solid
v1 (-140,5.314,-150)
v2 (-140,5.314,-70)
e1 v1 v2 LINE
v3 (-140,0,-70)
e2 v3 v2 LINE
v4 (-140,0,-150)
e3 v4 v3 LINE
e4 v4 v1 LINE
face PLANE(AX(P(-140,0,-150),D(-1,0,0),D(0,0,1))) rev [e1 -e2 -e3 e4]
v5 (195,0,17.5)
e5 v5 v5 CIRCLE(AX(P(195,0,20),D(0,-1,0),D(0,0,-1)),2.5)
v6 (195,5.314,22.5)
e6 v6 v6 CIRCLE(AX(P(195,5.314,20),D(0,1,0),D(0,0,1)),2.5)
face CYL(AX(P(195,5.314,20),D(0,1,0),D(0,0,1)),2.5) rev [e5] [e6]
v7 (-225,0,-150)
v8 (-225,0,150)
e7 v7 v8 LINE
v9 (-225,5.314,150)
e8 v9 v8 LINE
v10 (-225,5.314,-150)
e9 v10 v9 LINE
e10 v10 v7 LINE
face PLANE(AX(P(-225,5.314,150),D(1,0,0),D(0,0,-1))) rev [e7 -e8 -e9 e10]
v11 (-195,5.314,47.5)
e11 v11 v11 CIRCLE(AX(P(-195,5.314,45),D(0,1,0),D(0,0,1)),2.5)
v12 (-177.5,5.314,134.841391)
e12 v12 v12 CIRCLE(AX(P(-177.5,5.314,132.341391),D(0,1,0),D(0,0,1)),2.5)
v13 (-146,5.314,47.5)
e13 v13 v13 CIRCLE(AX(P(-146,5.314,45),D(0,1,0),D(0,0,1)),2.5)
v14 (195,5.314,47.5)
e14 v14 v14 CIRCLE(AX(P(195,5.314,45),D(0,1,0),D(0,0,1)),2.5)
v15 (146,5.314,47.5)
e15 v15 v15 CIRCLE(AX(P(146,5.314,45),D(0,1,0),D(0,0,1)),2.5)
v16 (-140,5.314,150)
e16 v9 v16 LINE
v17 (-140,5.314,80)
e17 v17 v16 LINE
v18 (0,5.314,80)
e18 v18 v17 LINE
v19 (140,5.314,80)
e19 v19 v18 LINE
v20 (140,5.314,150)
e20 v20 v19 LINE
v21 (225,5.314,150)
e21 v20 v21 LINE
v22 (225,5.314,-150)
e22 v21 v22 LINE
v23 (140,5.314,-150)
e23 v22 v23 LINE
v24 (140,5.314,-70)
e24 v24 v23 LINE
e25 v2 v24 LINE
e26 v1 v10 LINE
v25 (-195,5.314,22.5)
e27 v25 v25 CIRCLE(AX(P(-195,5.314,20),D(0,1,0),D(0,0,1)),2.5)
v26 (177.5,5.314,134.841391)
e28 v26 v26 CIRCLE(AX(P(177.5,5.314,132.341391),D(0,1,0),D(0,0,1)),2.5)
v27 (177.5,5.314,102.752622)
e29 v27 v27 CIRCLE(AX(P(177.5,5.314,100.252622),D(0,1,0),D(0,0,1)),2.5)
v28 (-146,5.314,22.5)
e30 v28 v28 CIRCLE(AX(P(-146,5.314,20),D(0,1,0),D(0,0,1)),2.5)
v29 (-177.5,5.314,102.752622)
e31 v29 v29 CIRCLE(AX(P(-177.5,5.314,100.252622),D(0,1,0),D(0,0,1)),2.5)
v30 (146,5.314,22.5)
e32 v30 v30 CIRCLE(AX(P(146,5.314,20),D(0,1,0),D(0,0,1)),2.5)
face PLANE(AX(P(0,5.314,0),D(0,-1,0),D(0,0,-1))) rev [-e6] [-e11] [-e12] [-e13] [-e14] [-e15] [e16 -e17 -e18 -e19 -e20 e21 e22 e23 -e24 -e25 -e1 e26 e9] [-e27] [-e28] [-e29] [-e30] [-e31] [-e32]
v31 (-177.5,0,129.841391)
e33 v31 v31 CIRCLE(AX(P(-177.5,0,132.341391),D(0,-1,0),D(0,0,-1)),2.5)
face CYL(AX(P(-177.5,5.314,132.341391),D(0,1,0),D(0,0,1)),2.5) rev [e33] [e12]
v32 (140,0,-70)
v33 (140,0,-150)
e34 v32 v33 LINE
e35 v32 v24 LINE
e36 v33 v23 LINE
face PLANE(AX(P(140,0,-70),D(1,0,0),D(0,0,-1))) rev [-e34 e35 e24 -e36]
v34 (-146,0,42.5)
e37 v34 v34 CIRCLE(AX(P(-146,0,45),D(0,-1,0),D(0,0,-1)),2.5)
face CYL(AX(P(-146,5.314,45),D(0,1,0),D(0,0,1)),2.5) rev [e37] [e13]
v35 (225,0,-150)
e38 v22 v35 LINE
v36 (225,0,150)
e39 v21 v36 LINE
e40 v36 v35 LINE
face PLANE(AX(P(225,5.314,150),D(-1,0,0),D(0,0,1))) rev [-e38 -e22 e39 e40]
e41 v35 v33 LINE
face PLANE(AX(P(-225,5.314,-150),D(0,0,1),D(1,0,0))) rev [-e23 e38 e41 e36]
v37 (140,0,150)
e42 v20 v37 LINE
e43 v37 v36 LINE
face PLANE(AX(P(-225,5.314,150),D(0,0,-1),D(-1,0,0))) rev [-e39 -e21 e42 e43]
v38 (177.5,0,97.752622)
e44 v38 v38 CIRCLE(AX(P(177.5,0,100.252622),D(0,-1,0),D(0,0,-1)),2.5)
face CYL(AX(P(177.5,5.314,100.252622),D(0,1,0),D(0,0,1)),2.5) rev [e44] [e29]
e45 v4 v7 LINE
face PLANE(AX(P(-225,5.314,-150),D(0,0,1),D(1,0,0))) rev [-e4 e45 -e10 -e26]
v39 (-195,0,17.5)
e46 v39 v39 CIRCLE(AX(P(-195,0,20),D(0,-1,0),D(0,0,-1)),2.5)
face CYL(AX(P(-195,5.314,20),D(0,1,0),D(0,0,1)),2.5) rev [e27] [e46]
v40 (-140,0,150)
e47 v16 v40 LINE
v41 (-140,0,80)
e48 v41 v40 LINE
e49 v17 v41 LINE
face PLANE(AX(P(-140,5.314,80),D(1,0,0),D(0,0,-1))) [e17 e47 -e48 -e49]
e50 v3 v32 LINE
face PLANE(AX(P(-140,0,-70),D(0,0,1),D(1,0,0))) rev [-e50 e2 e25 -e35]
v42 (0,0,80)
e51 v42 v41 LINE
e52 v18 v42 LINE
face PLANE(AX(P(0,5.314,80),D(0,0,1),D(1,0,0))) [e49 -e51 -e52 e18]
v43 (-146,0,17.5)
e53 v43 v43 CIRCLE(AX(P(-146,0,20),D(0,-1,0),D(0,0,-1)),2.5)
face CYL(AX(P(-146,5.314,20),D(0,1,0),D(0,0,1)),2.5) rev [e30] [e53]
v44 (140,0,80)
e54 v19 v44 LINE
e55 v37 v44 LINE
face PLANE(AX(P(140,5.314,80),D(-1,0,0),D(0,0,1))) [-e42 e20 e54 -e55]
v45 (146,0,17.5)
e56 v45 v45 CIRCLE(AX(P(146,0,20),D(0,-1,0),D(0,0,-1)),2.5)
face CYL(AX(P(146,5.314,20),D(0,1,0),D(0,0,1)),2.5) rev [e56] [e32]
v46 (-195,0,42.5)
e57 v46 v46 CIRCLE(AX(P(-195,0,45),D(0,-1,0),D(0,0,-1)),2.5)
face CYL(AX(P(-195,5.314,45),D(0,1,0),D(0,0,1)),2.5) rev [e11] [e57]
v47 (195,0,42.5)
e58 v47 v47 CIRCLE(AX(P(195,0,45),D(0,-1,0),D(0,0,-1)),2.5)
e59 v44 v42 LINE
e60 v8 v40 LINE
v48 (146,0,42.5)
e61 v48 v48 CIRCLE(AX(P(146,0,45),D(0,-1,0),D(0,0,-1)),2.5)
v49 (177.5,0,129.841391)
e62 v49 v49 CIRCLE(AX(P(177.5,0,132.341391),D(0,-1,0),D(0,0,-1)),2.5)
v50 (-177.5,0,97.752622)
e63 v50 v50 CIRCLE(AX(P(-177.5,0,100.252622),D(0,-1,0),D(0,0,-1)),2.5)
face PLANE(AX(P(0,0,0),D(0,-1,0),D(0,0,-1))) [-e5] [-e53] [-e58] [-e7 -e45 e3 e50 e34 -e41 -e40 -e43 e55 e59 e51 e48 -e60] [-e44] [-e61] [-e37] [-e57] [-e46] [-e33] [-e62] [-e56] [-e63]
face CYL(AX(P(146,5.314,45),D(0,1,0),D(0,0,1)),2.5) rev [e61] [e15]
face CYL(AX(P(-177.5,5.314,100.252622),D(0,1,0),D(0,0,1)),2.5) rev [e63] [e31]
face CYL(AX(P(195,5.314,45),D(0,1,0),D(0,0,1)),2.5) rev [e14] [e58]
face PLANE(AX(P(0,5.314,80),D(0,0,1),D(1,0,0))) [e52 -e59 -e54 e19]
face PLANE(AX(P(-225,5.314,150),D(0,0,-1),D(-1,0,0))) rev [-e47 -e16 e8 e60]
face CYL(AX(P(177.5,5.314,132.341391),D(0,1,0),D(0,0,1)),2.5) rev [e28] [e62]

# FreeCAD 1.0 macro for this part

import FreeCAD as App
import Part
import Sketcher

V = App.Vector
Q = App.Units.Quantity

doc = App.newDocument("Part")
body = doc.addObject("PartDesign::Body", "Body")

sketch1 = body.newObject("Sketcher::SketchObject", "Sketch")
sketch1.AttachmentSupport = (doc.getObject("XZ_Plane"), [""])
sketch1.MapMode = "FlatFace"
sketch1.addGeometry(Part.LineSegment(V(-225, -150, 0), V(-225, 150, 0)), False)
sketch1.addGeometry(Part.LineSegment(V(-225, 150, 0), V(225, 150, 0)), False)
sketch1.addGeometry(Part.LineSegment(V(225, 150, 0), V(225, -150, 0)), False)
sketch1.addGeometry(Part.LineSegment(V(225, -150, 0), V(-225, -150, 0)), False)
sketch1.addConstraint(Sketcher.Constraint("Coincident", 0, 2, 1, 1))
sketch1.addConstraint(Sketcher.Constraint("Coincident", 1, 2, 2, 1))
sketch1.addConstraint(Sketcher.Constraint("Coincident", 2, 2, 3, 1))
sketch1.addConstraint(Sketcher.Constraint("Coincident", 3, 2, 0, 1))
sketch1.addConstraint(Sketcher.Constraint("Vertical", 0))
sketch1.addConstraint(Sketcher.Constraint("Horizontal", 1))
sketch1.addConstraint(Sketcher.Constraint("Vertical", 2))
sketch1.addConstraint(Sketcher.Constraint("Horizontal", 3))
sketch1.addConstraint(Sketcher.Constraint("Symmetric", 0, 2, 2, 2, -1, 1))
sketch1.addConstraint(Sketcher.Constraint("DistanceX", 1, 1, 1, 2, Q("450 mm")))
sketch1.addConstraint(Sketcher.Constraint("DistanceY", 0, 1, 0, 2, Q("300 mm")))
pad1 = body.newObject("PartDesign::Pad", "Pad")
pad1.Profile = sketch1
pad1.Length = 5.314
pad1.Reversed = True

sketch2 = body.newObject("Sketcher::SketchObject", "Sketch001")
sketch2.AttachmentSupport = (doc.getObject("XZ_Plane"), [""])
sketch2.MapMode = "FlatFace"
sketch2.AttachmentOffset = App.Placement(V(0, 0, -5.314), App.Rotation())
sketch2.addGeometry(Part.Circle(V(-195, 45, 0), V(0, 0, 1), 2.5), False)
sketch2.addGeometry(Part.Circle(V(-146, 45, 0), V(0, 0, 1), 2.5), False)
sketch2.addGeometry(Part.Circle(V(-146, 20, 0), V(0, 0, 1), 2.5), False)
sketch2.addGeometry(Part.Circle(V(-195, 20, 0), V(0, 0, 1), 2.5), False)
sketch2.addGeometry(Part.Circle(V(146, 20, 0), V(0, 0, 1), 2.5), False)
sketch2.addGeometry(Part.Circle(V(195, 20, 0), V(0, 0, 1), 2.5), False)
sketch2.addGeometry(Part.Circle(V(195, 45, 0), V(0, 0, 1), 2.5), False)
sketch2.addGeometry(Part.Circle(V(146, 45, 0), V(0, 0, 1), 2.5), False)
sketch2.addConstraint(Sketcher.Constraint("Equal", 0, 1))
sketch2.addConstraint(Sketcher.Constraint("Equal", 1, 2))
sketch2.addConstraint(Sketcher.Constraint("Equal", 2, 3))
sketch2.addConstraint(Sketcher.Constraint("Equal", 3, 4))
sketch2.addConstraint(Sketcher.Constraint("Equal", 4, 5))
sketch2.addConstraint(Sketcher.Constraint("Equal", 5, 6))
sketch2.addConstraint(Sketcher.Constraint("Equal", 6, 7))
sketch2.addConstraint(Sketcher.Constraint("Symmetric", 2, 3, 4, 3, -2))
sketch2.addConstraint(Sketcher.Constraint("Symmetric", 3, 3, 5, 3, -2))
sketch2.addConstraint(Sketcher.Constraint("Symmetric", 0, 3, 6, 3, -2))
sketch2.addConstraint(Sketcher.Constraint("Symmetric", 1, 3, 7, 3, -2))
sketch2.addConstraint(Sketcher.Constraint("Horizontal", 0, 3, 1, 3))
sketch2.addConstraint(Sketcher.Constraint("Horizontal", 2, 3, 3, 3))
sketch2.addConstraint(Sketcher.Constraint("Vertical", 1, 3, 2, 3))
sketch2.addConstraint(Sketcher.Constraint("Vertical", 0, 3, 3, 3))
sketch2.addConstraint(Sketcher.Constraint("Diameter", 0, Q("5 mm")))
sketch2.addConstraint(Sketcher.Constraint("DistanceX", 0, 3, -1, 1, Q("195 mm")))
sketch2.addConstraint(Sketcher.Constraint("DistanceY", -1, 1, 0, 3, Q("45 mm")))
sketch2.addConstraint(Sketcher.Constraint("DistanceX", 1, 3, -1, 1, Q("146 mm")))
sketch2.addConstraint(Sketcher.Constraint("DistanceY", -1, 1, 2, 3, Q("20 mm")))
doc.recompute()
hole = body.newObject("PartDesign::Hole", "Hole")
hole.Profile = sketch2
hole.ThreadType = "None"
hole.Diameter = 5
hole.DepthType = "ThroughAll"
hole.Reversed = True

sketch3 = body.newObject("Sketcher::SketchObject", "Sketch002")
sketch3.AttachmentSupport = (doc.getObject("XZ_Plane"), [""])
sketch3.MapMode = "FlatFace"
sketch3.AttachmentOffset = App.Placement(V(0, 0, -5.314), App.Rotation())
sketch3.addGeometry(Part.LineSegment(V(140, 80, 0), V(-140, 80, 0)), False)
sketch3.addGeometry(Part.LineSegment(V(-140, 80, 0), V(-140, 150, 0)), False)
sketch3.addGeometry(Part.LineSegment(V(-140, 150, 0), V(140, 150, 0)), False)
sketch3.addGeometry(Part.LineSegment(V(140, 150, 0), V(140, 80, 0)), False)
sketch3.addConstraint(Sketcher.Constraint("Coincident", 0, 2, 1, 1))
sketch3.addConstraint(Sketcher.Constraint("Coincident", 1, 2, 2, 1))
sketch3.addConstraint(Sketcher.Constraint("Coincident", 2, 2, 3, 1))
sketch3.addConstraint(Sketcher.Constraint("Coincident", 3, 2, 0, 1))
sketch3.addConstraint(Sketcher.Constraint("Horizontal", 0))
sketch3.addConstraint(Sketcher.Constraint("Vertical", 1))
sketch3.addConstraint(Sketcher.Constraint("Horizontal", 2))
sketch3.addConstraint(Sketcher.Constraint("Vertical", 3))
sketch3.addConstraint(Sketcher.Constraint("DistanceX", 0, 2, 0, 1, Q("280 mm")))
sketch3.addConstraint(Sketcher.Constraint("DistanceY", 1, 1, 1, 2, Q("70 mm")))
sketch3.addConstraint(Sketcher.Constraint("DistanceX", 0, 2, -1, 1, Q("140 mm")))
sketch3.addConstraint(Sketcher.Constraint("DistanceY", -1, 1, 0, 2, Q("80 mm")))
pocket1 = body.newObject("PartDesign::Pocket", "Pocket")
pocket1.Profile = sketch3
pocket1.Type = "ThroughAll"
pocket1.Reversed = True

sketch4 = body.newObject("Sketcher::SketchObject", "Sketch003")
sketch4.AttachmentSupport = (doc.getObject("XZ_Plane"), [""])
sketch4.MapMode = "FlatFace"
sketch4.AttachmentOffset = App.Placement(V(0, 0, -5.314), App.Rotation())
sketch4.addGeometry(Part.Circle(V(-177.5, 100.252622, 0), V(0, 0, 1), 2.5), False)
sketch4.addGeometry(Part.Circle(V(-177.5, 132.341391, 0), V(0, 0, 1), 2.5), False)
sketch4.addGeometry(Part.Circle(V(177.5, 100.252622, 0), V(0, 0, 1), 2.5), False)
sketch4.addGeometry(Part.Circle(V(177.5, 132.341391, 0), V(0, 0, 1), 2.5), False)
sketch4.addConstraint(Sketcher.Constraint("Equal", 0, 1))
sketch4.addConstraint(Sketcher.Constraint("Equal", 1, 2))
sketch4.addConstraint(Sketcher.Constraint("Equal", 2, 3))
sketch4.addConstraint(Sketcher.Constraint("Symmetric", 0, 3, 2, 3, -2))
sketch4.addConstraint(Sketcher.Constraint("Symmetric", 1, 3, 3, 3, -2))
sketch4.addConstraint(Sketcher.Constraint("Vertical", 0, 3, 1, 3))
sketch4.addConstraint(Sketcher.Constraint("Diameter", 0, Q("5 mm")))
sketch4.addConstraint(Sketcher.Constraint("DistanceX", 0, 3, 2, 3, Q("355 mm")))
sketch4.addConstraint(Sketcher.Constraint("DistanceY", -1, 1, 0, 3, Q("100.252622 mm")))
sketch4.addConstraint(Sketcher.Constraint("DistanceY", -1, 1, 1, 3, Q("132.341391 mm")))
doc.recompute()
hole2 = body.newObject("PartDesign::Hole", "Hole001")
hole2.Profile = sketch4
hole2.ThreadType = "None"
hole2.Diameter = 5
hole2.DepthType = "ThroughAll"
hole2.Reversed = True

sketch5 = body.newObject("Sketcher::SketchObject", "Sketch004")
sketch5.AttachmentSupport = (doc.getObject("XZ_Plane"), [""])
sketch5.MapMode = "FlatFace"
sketch5.AttachmentOffset = App.Placement(V(0, 0, -5.314), App.Rotation())
sketch5.addGeometry(Part.LineSegment(V(-140, -150, 0), V(-140, -70, 0)), False)
sketch5.addGeometry(Part.LineSegment(V(-140, -70, 0), V(140, -70, 0)), False)
sketch5.addGeometry(Part.LineSegment(V(140, -70, 0), V(140, -150, 0)), False)
sketch5.addGeometry(Part.LineSegment(V(140, -150, 0), V(-140, -150, 0)), False)
sketch5.addConstraint(Sketcher.Constraint("Coincident", 0, 2, 1, 1))
sketch5.addConstraint(Sketcher.Constraint("Coincident", 1, 2, 2, 1))
sketch5.addConstraint(Sketcher.Constraint("Coincident", 2, 2, 3, 1))
sketch5.addConstraint(Sketcher.Constraint("Coincident", 3, 2, 0, 1))
sketch5.addConstraint(Sketcher.Constraint("Vertical", 0))
sketch5.addConstraint(Sketcher.Constraint("Horizontal", 1))
sketch5.addConstraint(Sketcher.Constraint("Vertical", 2))
sketch5.addConstraint(Sketcher.Constraint("Horizontal", 3))
sketch5.addConstraint(Sketcher.Constraint("DistanceX", 1, 1, 1, 2, Q("280 mm")))
sketch5.addConstraint(Sketcher.Constraint("DistanceY", 0, 1, 0, 2, Q("80 mm")))
sketch5.addConstraint(Sketcher.Constraint("DistanceX", 0, 2, -1, 1, Q("140 mm")))
sketch5.addConstraint(Sketcher.Constraint("DistanceY", 0, 2, -1, 1, Q("70 mm")))
pocket2 = body.newObject("PartDesign::Pocket", "Pocket001")
pocket2.Profile = sketch5
pocket2.Type = "ThroughAll"
pocket2.Reversed = True

doc.recompute()
